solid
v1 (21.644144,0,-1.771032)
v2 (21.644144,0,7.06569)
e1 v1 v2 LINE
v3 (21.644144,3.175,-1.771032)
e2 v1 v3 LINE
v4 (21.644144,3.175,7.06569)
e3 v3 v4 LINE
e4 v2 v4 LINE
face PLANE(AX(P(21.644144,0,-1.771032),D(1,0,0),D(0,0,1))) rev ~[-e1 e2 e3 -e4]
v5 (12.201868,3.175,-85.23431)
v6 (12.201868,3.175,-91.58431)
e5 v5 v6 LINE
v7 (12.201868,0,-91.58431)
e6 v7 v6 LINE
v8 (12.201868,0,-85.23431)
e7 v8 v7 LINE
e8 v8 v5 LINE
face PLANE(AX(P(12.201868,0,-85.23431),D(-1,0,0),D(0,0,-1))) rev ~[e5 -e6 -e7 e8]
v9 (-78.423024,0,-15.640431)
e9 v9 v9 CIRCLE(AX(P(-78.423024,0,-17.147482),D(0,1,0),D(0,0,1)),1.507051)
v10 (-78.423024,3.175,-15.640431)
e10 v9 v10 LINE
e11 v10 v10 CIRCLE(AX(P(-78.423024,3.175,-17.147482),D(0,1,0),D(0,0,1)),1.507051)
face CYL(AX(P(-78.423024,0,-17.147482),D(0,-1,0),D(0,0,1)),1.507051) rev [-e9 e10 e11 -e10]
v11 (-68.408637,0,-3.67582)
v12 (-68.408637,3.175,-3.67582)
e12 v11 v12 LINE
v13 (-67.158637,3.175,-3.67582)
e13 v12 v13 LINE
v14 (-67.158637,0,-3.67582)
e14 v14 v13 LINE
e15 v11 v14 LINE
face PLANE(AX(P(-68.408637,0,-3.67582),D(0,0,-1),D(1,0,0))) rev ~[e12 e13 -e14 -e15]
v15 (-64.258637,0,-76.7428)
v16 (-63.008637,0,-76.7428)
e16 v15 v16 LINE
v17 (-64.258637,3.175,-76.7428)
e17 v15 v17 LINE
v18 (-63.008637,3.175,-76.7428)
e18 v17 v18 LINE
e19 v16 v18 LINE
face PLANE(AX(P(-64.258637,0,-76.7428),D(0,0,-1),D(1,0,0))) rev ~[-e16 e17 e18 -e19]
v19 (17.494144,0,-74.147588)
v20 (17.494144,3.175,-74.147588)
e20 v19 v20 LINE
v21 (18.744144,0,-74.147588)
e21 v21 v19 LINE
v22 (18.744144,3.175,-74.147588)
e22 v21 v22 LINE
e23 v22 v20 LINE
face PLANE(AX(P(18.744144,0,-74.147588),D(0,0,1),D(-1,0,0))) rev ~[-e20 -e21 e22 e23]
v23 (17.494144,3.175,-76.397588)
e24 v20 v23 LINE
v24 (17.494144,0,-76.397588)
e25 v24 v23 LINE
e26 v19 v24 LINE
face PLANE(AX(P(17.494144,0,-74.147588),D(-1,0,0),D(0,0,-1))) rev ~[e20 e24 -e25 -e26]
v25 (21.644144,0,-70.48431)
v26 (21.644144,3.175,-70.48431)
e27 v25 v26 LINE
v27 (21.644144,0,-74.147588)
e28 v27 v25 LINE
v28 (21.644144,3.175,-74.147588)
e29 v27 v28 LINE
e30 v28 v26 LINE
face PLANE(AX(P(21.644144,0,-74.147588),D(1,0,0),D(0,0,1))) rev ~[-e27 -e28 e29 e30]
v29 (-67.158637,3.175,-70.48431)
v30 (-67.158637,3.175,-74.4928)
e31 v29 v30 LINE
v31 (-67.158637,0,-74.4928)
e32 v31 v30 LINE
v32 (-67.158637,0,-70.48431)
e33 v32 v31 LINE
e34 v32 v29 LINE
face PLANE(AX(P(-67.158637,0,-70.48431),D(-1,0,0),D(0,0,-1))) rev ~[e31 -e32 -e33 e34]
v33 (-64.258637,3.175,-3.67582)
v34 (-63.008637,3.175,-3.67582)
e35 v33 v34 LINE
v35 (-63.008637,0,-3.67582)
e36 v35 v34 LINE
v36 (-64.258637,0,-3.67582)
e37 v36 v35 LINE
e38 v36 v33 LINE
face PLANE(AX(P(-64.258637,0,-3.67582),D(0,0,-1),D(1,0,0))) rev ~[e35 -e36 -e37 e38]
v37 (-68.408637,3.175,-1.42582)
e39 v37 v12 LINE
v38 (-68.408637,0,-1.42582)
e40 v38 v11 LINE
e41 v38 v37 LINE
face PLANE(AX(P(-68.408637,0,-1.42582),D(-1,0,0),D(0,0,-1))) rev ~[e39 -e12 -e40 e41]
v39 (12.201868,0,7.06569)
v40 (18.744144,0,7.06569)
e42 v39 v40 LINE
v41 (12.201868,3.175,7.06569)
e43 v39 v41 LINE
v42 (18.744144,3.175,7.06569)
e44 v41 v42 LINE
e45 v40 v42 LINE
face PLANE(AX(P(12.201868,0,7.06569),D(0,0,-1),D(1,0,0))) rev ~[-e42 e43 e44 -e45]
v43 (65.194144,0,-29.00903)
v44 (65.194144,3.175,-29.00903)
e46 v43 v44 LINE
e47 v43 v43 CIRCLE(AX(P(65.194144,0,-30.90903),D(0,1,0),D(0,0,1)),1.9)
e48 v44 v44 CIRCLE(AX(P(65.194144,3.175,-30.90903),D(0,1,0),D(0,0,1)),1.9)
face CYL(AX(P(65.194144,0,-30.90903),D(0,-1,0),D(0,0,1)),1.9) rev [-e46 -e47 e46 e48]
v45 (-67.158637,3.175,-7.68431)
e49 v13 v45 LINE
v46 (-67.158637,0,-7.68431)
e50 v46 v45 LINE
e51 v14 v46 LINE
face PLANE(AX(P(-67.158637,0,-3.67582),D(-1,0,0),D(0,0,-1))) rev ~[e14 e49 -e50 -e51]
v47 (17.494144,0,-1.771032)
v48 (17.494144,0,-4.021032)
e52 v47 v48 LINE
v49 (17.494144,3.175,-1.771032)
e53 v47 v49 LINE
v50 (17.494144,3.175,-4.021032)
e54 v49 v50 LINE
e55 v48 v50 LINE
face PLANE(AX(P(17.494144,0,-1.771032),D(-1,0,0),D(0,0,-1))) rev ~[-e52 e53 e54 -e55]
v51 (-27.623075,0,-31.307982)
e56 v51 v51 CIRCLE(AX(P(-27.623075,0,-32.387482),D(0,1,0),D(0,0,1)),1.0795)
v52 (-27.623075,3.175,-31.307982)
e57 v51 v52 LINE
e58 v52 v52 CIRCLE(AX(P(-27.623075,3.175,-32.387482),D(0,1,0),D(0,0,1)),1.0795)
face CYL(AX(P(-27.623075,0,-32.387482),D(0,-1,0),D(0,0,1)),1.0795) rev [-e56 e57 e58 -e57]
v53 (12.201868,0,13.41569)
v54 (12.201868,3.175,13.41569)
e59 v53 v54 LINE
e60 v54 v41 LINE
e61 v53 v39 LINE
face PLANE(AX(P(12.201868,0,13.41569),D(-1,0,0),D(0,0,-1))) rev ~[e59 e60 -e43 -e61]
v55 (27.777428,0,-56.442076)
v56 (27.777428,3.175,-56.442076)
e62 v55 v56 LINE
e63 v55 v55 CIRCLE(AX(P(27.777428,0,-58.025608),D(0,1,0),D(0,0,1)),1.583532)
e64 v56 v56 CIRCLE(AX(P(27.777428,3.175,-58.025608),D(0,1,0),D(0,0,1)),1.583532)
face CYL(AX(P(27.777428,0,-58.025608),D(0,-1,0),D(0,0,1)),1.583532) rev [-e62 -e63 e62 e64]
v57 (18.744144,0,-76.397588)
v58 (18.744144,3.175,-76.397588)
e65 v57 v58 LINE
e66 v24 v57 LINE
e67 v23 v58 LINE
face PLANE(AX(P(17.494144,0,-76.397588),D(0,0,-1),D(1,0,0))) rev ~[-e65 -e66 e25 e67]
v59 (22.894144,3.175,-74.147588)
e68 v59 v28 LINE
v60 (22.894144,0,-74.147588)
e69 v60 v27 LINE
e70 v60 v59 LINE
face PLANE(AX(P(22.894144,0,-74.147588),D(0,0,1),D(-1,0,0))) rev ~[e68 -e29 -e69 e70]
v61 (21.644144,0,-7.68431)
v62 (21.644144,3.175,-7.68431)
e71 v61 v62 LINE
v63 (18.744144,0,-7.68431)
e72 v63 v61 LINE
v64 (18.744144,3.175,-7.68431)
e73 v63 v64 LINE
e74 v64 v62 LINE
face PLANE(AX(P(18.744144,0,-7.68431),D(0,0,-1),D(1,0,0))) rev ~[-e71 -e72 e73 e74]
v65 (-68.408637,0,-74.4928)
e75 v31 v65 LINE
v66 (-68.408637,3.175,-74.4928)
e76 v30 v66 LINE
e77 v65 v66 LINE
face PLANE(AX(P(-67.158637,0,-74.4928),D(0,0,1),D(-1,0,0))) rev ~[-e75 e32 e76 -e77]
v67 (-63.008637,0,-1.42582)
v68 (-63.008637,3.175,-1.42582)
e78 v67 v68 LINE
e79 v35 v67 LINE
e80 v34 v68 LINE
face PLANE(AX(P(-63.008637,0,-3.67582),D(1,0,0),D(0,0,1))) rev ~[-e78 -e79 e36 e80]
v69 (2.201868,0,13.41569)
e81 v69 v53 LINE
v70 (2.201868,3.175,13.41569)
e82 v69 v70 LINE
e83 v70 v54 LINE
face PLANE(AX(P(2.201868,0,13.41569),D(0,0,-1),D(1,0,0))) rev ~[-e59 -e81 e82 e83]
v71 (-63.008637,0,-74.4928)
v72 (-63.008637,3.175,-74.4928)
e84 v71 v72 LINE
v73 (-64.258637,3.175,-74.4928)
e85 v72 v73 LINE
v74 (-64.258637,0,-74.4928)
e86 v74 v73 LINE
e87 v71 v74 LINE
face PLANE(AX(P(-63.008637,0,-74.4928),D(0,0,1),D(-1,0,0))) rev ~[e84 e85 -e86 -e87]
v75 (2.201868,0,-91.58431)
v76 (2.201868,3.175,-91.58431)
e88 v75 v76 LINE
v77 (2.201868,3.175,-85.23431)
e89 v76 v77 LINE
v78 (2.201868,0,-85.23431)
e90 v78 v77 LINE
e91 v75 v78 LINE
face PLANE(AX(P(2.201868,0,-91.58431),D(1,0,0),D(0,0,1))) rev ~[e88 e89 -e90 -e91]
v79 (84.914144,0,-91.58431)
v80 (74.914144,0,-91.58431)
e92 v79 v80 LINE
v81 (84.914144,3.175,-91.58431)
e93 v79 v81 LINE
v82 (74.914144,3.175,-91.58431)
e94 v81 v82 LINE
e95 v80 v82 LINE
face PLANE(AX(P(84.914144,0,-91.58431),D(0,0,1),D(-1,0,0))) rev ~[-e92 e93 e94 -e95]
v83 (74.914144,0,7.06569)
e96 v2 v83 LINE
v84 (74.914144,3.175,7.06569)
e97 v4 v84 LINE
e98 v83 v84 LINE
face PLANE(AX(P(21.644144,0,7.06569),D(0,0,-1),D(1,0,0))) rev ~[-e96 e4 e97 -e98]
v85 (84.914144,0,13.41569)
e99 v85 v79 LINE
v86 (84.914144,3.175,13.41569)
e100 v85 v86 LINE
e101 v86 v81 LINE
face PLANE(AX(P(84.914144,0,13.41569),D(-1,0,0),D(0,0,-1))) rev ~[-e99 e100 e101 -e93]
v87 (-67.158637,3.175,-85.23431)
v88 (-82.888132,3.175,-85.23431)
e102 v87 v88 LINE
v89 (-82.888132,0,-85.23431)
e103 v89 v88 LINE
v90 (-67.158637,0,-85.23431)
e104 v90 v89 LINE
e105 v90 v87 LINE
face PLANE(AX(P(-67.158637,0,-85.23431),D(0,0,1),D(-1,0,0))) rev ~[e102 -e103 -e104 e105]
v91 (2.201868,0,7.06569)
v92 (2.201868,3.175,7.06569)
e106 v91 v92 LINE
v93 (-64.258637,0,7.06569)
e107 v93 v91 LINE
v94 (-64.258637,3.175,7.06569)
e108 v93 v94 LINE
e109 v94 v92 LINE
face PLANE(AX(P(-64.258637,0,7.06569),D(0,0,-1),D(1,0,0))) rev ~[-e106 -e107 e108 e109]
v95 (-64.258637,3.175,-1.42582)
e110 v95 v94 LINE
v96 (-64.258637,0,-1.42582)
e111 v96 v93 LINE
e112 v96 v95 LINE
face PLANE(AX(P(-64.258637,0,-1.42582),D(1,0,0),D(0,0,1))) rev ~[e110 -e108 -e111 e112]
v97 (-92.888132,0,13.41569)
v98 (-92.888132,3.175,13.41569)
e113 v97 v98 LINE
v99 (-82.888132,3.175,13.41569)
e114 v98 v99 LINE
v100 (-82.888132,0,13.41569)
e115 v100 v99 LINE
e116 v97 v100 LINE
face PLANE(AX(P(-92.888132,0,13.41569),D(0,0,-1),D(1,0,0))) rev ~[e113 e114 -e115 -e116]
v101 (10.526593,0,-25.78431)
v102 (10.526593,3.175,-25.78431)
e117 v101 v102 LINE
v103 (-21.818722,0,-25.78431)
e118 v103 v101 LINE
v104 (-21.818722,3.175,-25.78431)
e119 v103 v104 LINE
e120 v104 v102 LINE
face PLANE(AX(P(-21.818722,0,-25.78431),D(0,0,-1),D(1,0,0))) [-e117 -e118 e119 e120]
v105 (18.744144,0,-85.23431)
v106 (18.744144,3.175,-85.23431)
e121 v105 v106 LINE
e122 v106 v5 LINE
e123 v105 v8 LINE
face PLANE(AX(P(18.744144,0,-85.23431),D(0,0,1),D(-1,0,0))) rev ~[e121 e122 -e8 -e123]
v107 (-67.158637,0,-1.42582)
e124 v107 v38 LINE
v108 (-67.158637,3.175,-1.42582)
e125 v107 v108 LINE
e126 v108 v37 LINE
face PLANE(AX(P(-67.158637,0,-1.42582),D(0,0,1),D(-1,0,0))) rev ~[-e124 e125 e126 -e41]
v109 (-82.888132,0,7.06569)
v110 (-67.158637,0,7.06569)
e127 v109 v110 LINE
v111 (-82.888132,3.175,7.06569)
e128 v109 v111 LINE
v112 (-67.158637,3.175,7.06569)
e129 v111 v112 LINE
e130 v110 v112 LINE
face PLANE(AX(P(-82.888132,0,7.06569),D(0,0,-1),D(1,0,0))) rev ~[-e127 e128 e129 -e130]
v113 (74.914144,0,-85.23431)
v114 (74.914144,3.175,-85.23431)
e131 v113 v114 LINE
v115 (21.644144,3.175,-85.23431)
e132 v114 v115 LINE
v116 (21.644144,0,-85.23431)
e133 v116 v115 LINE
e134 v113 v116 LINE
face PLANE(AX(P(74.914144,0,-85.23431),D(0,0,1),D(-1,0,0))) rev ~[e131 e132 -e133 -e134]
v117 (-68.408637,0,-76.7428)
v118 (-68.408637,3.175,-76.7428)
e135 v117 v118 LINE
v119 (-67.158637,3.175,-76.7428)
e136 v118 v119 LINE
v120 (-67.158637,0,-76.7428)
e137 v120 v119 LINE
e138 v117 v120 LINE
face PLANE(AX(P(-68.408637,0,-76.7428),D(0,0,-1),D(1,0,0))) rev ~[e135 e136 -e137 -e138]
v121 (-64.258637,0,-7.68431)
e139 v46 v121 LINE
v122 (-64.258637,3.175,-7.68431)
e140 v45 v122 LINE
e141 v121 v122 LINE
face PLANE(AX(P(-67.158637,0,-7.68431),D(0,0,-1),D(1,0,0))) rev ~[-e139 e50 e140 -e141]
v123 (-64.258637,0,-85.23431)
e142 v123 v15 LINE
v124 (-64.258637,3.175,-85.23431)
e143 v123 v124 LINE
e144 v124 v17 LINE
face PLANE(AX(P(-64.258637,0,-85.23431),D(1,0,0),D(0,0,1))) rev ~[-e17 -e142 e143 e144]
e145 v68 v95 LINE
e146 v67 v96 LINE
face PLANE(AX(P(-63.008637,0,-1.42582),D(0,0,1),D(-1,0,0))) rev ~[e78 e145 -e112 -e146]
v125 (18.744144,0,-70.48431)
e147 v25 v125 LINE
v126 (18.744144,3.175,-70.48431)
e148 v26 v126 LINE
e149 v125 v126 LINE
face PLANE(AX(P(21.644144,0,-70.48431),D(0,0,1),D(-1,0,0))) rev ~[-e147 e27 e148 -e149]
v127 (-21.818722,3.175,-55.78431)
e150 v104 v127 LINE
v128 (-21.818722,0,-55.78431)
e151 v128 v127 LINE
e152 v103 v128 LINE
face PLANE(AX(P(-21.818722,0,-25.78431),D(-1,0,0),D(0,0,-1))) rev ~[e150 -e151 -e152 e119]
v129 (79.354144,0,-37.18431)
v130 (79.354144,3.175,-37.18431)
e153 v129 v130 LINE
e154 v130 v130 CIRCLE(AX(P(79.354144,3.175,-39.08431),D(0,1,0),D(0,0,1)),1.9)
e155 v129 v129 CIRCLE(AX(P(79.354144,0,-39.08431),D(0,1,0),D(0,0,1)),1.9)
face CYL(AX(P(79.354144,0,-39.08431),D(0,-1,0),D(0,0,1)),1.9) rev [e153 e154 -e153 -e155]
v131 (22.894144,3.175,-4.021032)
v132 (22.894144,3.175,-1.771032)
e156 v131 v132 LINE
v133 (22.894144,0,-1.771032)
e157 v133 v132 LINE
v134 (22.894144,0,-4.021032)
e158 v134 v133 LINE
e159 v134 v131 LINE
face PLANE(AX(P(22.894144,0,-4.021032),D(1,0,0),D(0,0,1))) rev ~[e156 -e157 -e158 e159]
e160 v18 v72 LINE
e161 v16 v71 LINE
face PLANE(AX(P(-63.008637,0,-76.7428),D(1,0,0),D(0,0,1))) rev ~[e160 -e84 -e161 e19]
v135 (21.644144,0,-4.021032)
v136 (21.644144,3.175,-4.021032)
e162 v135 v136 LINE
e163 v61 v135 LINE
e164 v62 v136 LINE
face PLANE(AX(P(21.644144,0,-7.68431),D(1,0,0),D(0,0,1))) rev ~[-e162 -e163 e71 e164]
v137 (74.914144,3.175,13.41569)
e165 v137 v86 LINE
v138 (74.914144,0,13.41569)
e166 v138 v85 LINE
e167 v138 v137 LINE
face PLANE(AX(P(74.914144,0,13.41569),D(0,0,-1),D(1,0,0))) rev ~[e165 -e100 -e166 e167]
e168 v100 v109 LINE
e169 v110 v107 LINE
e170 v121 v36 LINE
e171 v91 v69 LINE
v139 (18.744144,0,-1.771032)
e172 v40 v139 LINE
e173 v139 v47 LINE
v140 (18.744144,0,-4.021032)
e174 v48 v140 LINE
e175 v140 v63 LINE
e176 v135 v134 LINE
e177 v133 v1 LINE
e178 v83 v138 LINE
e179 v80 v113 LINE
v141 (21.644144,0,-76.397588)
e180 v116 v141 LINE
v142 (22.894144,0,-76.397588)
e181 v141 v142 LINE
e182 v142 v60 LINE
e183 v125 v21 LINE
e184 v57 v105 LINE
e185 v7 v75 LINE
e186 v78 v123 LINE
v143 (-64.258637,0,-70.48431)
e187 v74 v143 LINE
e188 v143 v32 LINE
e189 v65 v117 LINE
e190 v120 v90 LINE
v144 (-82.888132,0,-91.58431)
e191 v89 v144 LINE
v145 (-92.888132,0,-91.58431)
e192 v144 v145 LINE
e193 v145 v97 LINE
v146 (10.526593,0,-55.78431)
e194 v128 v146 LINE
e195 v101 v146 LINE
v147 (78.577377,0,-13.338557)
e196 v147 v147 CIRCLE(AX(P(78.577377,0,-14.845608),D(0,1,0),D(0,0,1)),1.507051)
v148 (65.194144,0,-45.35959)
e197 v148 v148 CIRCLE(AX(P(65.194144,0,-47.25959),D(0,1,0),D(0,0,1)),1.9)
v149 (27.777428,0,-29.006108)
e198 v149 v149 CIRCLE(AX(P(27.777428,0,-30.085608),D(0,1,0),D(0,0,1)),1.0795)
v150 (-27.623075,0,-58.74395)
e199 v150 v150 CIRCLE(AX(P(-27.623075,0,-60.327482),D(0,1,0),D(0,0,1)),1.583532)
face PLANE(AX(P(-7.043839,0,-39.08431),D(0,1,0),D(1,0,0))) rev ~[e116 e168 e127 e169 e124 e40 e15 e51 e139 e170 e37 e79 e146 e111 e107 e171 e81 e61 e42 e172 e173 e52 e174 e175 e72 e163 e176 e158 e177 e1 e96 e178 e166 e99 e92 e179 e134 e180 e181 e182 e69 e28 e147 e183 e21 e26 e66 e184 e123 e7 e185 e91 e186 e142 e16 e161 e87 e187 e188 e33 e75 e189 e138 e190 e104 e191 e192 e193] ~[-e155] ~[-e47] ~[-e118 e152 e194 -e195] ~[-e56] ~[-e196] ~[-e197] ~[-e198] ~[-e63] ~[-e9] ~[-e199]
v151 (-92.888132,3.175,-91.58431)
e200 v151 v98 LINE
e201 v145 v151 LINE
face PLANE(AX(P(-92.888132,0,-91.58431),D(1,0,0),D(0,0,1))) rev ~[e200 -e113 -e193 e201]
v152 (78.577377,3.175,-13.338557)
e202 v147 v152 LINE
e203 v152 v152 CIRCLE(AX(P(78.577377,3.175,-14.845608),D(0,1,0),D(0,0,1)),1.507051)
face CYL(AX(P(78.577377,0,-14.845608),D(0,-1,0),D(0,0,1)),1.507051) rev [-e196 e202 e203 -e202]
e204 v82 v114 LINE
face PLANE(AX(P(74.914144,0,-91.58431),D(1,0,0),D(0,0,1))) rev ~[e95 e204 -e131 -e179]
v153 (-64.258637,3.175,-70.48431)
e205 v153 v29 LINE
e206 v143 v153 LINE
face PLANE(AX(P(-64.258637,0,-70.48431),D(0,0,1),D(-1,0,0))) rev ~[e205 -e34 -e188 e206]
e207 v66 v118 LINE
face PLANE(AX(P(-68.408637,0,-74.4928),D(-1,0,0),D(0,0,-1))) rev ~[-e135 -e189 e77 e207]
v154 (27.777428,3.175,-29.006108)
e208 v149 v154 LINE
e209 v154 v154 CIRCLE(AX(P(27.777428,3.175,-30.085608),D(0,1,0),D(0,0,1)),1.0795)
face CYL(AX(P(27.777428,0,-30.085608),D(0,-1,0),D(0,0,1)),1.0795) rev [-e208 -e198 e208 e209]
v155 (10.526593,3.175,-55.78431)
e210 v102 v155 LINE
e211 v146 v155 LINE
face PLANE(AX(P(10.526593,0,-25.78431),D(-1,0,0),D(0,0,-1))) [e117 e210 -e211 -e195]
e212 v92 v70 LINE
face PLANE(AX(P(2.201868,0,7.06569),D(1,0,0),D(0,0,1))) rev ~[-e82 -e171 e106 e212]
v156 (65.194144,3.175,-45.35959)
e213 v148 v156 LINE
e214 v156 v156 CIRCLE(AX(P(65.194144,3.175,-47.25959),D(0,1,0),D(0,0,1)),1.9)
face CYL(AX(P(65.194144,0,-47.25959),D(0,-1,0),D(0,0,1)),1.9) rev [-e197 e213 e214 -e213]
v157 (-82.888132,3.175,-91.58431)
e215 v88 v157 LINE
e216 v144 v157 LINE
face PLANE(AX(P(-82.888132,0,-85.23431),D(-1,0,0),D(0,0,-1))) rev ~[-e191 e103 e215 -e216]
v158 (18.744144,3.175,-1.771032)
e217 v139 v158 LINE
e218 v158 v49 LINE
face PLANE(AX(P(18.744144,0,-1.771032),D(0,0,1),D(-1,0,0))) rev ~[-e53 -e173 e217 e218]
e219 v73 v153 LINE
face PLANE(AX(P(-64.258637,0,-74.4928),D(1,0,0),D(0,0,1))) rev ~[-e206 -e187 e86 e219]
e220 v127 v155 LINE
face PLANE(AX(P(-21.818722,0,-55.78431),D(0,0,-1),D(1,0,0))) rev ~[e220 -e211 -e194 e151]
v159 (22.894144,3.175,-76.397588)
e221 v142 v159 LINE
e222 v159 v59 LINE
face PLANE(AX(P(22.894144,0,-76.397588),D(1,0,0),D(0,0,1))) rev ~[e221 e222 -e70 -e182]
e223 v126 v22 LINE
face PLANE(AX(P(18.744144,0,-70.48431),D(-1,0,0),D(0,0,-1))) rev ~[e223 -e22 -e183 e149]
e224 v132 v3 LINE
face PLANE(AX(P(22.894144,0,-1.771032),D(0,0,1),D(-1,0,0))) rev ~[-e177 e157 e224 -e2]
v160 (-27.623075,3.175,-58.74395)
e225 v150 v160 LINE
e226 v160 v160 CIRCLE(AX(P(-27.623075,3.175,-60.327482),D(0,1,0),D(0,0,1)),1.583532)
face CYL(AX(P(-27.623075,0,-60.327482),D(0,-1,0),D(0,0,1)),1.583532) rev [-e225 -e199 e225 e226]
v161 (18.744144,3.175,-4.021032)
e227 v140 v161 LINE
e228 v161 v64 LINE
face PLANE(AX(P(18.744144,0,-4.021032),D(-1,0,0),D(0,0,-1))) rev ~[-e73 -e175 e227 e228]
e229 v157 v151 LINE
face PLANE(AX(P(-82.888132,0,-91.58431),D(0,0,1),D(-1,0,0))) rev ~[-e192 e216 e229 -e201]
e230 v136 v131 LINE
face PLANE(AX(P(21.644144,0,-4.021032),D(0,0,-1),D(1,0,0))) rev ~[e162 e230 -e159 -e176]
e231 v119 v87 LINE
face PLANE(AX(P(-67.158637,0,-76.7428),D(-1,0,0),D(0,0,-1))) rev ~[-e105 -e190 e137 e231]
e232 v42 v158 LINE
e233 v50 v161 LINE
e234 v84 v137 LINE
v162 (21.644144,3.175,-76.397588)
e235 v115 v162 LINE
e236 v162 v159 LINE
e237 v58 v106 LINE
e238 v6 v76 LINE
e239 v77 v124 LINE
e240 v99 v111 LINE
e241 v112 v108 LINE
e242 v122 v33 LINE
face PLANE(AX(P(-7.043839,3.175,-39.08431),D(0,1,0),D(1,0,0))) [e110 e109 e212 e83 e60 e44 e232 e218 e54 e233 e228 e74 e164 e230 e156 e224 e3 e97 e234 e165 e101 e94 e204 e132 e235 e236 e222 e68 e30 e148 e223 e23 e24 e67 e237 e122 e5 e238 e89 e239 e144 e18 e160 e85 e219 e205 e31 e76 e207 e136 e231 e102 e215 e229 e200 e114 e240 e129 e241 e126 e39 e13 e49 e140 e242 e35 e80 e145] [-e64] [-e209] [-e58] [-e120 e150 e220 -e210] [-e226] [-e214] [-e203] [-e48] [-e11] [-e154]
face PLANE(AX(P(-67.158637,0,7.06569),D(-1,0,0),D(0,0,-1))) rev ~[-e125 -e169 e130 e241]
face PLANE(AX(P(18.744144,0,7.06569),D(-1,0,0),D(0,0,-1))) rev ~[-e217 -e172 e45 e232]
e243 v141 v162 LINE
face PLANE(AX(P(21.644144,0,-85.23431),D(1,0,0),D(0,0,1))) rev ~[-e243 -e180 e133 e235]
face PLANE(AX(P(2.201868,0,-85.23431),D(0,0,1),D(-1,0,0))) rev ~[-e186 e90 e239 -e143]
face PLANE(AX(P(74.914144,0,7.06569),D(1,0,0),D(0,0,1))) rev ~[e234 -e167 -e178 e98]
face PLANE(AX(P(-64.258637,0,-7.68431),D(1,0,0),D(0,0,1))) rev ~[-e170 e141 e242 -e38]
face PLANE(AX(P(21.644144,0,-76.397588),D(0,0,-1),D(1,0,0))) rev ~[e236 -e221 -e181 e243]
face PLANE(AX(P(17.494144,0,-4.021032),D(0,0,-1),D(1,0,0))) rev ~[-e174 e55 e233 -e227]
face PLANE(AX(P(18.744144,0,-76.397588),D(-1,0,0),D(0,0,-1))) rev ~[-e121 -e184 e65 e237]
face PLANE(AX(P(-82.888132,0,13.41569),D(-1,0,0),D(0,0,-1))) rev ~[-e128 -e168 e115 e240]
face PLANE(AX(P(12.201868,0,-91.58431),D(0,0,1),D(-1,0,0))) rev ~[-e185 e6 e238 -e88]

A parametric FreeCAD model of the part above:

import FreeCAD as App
import Part
import Sketcher

V = App.Vector

doc = App.newDocument("Part")
params = doc.addObject("Spreadsheet::Sheet", "Params")
for row, (alias, value) in enumerate([
    ("sketch1_diameter", "3.8 mm"),
    ("sketch1_width", "10 mm"),
    ("sketch1_height", "105 mm"),
    ("sketch1_height2", "30 mm"),
    ("sketch1_width2", "2.9 mm"),
    ("pad1_length", "3.175 mm"),
], start=1):
    params.set(f"A{row}", alias)
    params.set(f"B{row}", "=" + value)
    params.setAlias(f"B{row}", alias)

body = doc.addObject("PartDesign::Body", "Body")

# Sketch on XZ plane
sketch1 = doc.addObject("Sketcher::SketchObject", "Sketch")
body.addObject(sketch1)
sketch1.AttachmentSupport = (doc.XZ_Plane, [""])
sketch1.MapMode = "FlatFace"
sketch1.addGeometry(Part.LineSegment(V(-67.2, -70.5, 0), V(-67.2, -74.5, 0)), False)
sketch1.addGeometry(Part.LineSegment(V(-67.2, -74.5, 0), V(-68.4, -74.5, 0)), False)
sketch1.addGeometry(Part.LineSegment(V(-68.4, -74.5, 0), V(-68.4, -76.7, 0)), False)
sketch1.addGeometry(Part.LineSegment(V(-68.4, -76.7, 0), V(-67.2, -76.7, 0)), False)
sketch1.addGeometry(Part.LineSegment(V(-67.2, -76.7, 0), V(-67.2, -85.2, 0)), False)
sketch1.addGeometry(Part.LineSegment(V(-67.2, -85.2, 0), V(-82.9, -85.2, 0)), False)
sketch1.addGeometry(Part.LineSegment(V(-82.9, -85.2, 0), V(-82.9, -91.6, 0)), False)
sketch1.addGeometry(Part.LineSegment(V(-82.9, -91.6, 0), V(-92.9, -91.6, 0)), False)
sketch1.addGeometry(Part.LineSegment(V(-92.9, -91.6, 0), V(-92.9, 13.4, 0)), False)
sketch1.addGeometry(Part.LineSegment(V(-92.9, 13.4, 0), V(-82.9, 13.4, 0)), False)
sketch1.addGeometry(Part.LineSegment(V(-82.9, 13.4, 0), V(-82.9, 7.1, 0)), False)
sketch1.addGeometry(Part.LineSegment(V(-82.9, 7.1, 0), V(-67.2, 7.1, 0)), False)
sketch1.addGeometry(Part.LineSegment(V(-67.2, 7.1, 0), V(-67.2, -1.4, 0)), False)
sketch1.addGeometry(Part.LineSegment(V(-67.2, -1.4, 0), V(-68.4, -1.4, 0)), False)
sketch1.addGeometry(Part.LineSegment(V(-68.4, -1.4, 0), V(-68.4, -3.7, 0)), False)
sketch1.addGeometry(Part.LineSegment(V(-68.4, -3.7, 0), V(-67.2, -3.7, 0)), False)
sketch1.addGeometry(Part.LineSegment(V(-67.2, -3.7, 0), V(-67.2, -7.7, 0)), False)
sketch1.addGeometry(Part.LineSegment(V(-67.2, -7.7, 0), V(-64.3, -7.7, 0)), False)
sketch1.addGeometry(Part.LineSegment(V(-64.3, -7.7, 0), V(-64.3, -3.7, 0)), False)
sketch1.addGeometry(Part.LineSegment(V(-64.3, -3.7, 0), V(-63, -3.7, 0)), False)
sketch1.addGeometry(Part.LineSegment(V(-63, -3.7, 0), V(-63, -1.4, 0)), False)
sketch1.addGeometry(Part.LineSegment(V(-63, -1.4, 0), V(-64.3, -1.4, 0)), False)
sketch1.addGeometry(Part.LineSegment(V(-64.3, -1.4, 0), V(-64.3, 7.1, 0)), False)
sketch1.addGeometry(Part.LineSegment(V(-64.3, 7.1, 0), V(2.2, 7.1, 0)), False)
sketch1.addGeometry(Part.LineSegment(V(2.2, 7.1, 0), V(2.2, 13.4, 0)), False)
sketch1.addGeometry(Part.LineSegment(V(2.2, 13.4, 0), V(12.2, 13.4, 0)), False)
sketch1.addGeometry(Part.LineSegment(V(12.2, 13.4, 0), V(12.2, 7.1, 0)), False)
sketch1.addGeometry(Part.LineSegment(V(12.2, 7.1, 0), V(18.7, 7.1, 0)), False)
sketch1.addGeometry(Part.LineSegment(V(18.7, 7.1, 0), V(18.7, -1.8, 0)), False)
sketch1.addGeometry(Part.LineSegment(V(18.7, -1.8, 0), V(17.5, -1.8, 0)), False)
sketch1.addGeometry(Part.LineSegment(V(17.5, -1.8, 0), V(17.5, -4, 0)), False)
sketch1.addGeometry(Part.LineSegment(V(17.5, -4, 0), V(18.7, -4, 0)), False)
sketch1.addGeometry(Part.LineSegment(V(18.7, -4, 0), V(18.7, -7.7, 0)), False)
sketch1.addGeometry(Part.LineSegment(V(18.7, -7.7, 0), V(21.6, -7.7, 0)), False)
sketch1.addGeometry(Part.LineSegment(V(21.6, -7.7, 0), V(21.6, -4, 0)), False)
sketch1.addGeometry(Part.LineSegment(V(21.6, -4, 0), V(22.9, -4, 0)), False)
sketch1.addGeometry(Part.LineSegment(V(22.9, -4, 0), V(22.9, -1.8, 0)), False)
sketch1.addGeometry(Part.LineSegment(V(22.9, -1.8, 0), V(21.6, -1.8, 0)), False)
sketch1.addGeometry(Part.LineSegment(V(21.6, -1.8, 0), V(21.6, 7.1, 0)), False)
sketch1.addGeometry(Part.LineSegment(V(21.6, 7.1, 0), V(74.9, 7.1, 0)), False)
sketch1.addGeometry(Part.LineSegment(V(74.9, 7.1, 0), V(74.9, 13.4, 0)), False)
sketch1.addGeometry(Part.LineSegment(V(74.9, 13.4, 0), V(84.9, 13.4, 0)), False)
sketch1.addGeometry(Part.LineSegment(V(84.9, 13.4, 0), V(84.9, -91.6, 0)), False)
sketch1.addGeometry(Part.LineSegment(V(84.9, -91.6, 0), V(74.9, -91.6, 0)), False)
sketch1.addGeometry(Part.LineSegment(V(74.9, -91.6, 0), V(74.9, -85.2, 0)), False)
sketch1.addGeometry(Part.LineSegment(V(74.9, -85.2, 0), V(21.6, -85.2, 0)), False)
sketch1.addGeometry(Part.LineSegment(V(21.6, -85.2, 0), V(21.6, -76.4, 0)), False)
sketch1.addGeometry(Part.LineSegment(V(21.6, -76.4, 0), V(22.9, -76.4, 0)), False)
sketch1.addGeometry(Part.LineSegment(V(22.9, -76.4, 0), V(22.9, -74.1, 0)), False)
sketch1.addGeometry(Part.LineSegment(V(22.9, -74.1, 0), V(21.6, -74.1, 0)), False)
sketch1.addGeometry(Part.LineSegment(V(21.6, -74.1, 0), V(21.6, -70.5, 0)), False)
sketch1.addGeometry(Part.LineSegment(V(21.6, -70.5, 0), V(18.7, -70.5, 0)), False)
sketch1.addGeometry(Part.LineSegment(V(18.7, -70.5, 0), V(18.7, -74.1, 0)), False)
sketch1.addGeometry(Part.LineSegment(V(18.7, -74.1, 0), V(17.5, -74.1, 0)), False)
sketch1.addGeometry(Part.LineSegment(V(17.5, -74.1, 0), V(17.5, -76.4, 0)), False)
sketch1.addGeometry(Part.LineSegment(V(17.5, -76.4, 0), V(18.7, -76.4, 0)), False)
sketch1.addGeometry(Part.LineSegment(V(18.7, -76.4, 0), V(18.7, -85.2, 0)), False)
sketch1.addGeometry(Part.LineSegment(V(18.7, -85.2, 0), V(12.2, -85.2, 0)), False)
sketch1.addGeometry(Part.LineSegment(V(12.2, -85.2, 0), V(12.2, -91.6, 0)), False)
sketch1.addGeometry(Part.LineSegment(V(12.2, -91.6, 0), V(2.2, -91.6, 0)), False)
sketch1.addGeometry(Part.LineSegment(V(2.2, -91.6, 0), V(2.2, -85.2, 0)), False)
sketch1.addGeometry(Part.LineSegment(V(2.2, -85.2, 0), V(-64.3, -85.2, 0)), False)
sketch1.addGeometry(Part.LineSegment(V(-64.3, -85.2, 0), V(-64.3, -76.7, 0)), False)
sketch1.addGeometry(Part.LineSegment(V(-64.3, -76.7, 0), V(-63, -76.7, 0)), False)
sketch1.addGeometry(Part.LineSegment(V(-63, -76.7, 0), V(-63, -74.5, 0)), False)
sketch1.addGeometry(Part.LineSegment(V(-63, -74.5, 0), V(-64.3, -74.5, 0)), False)
sketch1.addGeometry(Part.LineSegment(V(-64.3, -74.5, 0), V(-64.3, -70.5, 0)), False)
sketch1.addGeometry(Part.LineSegment(V(-64.3, -70.5, 0), V(-67.2, -70.5, 0)), False)
sketch1.addGeometry(Part.Circle(V(-78.4, -17.1, 0), V(0, 0, 1), 1.5), False)
sketch1.addGeometry(Part.Circle(V(-27.6, -32.4, 0), V(0, 0, 1), 1.1), False)
sketch1.addGeometry(Part.Circle(V(78.6, -14.8, 0), V(0, 0, 1), 1.5), False)
sketch1.addGeometry(Part.Circle(V(27.8, -30.1, 0), V(0, 0, 1), 1.1), False)
sketch1.addGeometry(Part.Circle(V(65.2, -30.9, 0), V(0, 0, 1), 1.9), False)
sketch1.addGeometry(Part.LineSegment(V(10.5, -25.8, 0), V(-21.8, -25.8, 0)), False)
sketch1.addGeometry(Part.LineSegment(V(-21.8, -25.8, 0), V(-21.8, -55.8, 0)), False)
sketch1.addGeometry(Part.LineSegment(V(-21.8, -55.8, 0), V(10.5, -55.8, 0)), False)
sketch1.addGeometry(Part.LineSegment(V(10.5, -55.8, 0), V(10.5, -25.8, 0)), False)
sketch1.addGeometry(Part.Circle(V(-27.6, -60.3, 0), V(0, 0, 1), 1.6), False)
sketch1.addGeometry(Part.Circle(V(79.4, -39.1, 0), V(0, 0, 1), 1.9), False)
sketch1.addGeometry(Part.Circle(V(65.2, -47.3, 0), V(0, 0, 1), 1.9), False)
sketch1.addGeometry(Part.Circle(V(27.8, -58, 0), V(0, 0, 1), 1.6), False)
sketch1.addConstraint(Sketcher.Constraint("Coincident", 0, 2, 1, 1))
sketch1.addConstraint(Sketcher.Constraint("Coincident", 1, 2, 2, 1))
sketch1.addConstraint(Sketcher.Constraint("Coincident", 2, 2, 3, 1))
sketch1.addConstraint(Sketcher.Constraint("Coincident", 3, 2, 4, 1))
sketch1.addConstraint(Sketcher.Constraint("Coincident", 4, 2, 5, 1))
sketch1.addConstraint(Sketcher.Constraint("Coincident", 5, 2, 6, 1))
sketch1.addConstraint(Sketcher.Constraint("Coincident", 6, 2, 7, 1))
sketch1.addConstraint(Sketcher.Constraint("Coincident", 7, 2, 8, 1))
sketch1.addConstraint(Sketcher.Constraint("Coincident", 8, 2, 9, 1))
sketch1.addConstraint(Sketcher.Constraint("Coincident", 9, 2, 10, 1))
sketch1.addConstraint(Sketcher.Constraint("Coincident", 10, 2, 11, 1))
sketch1.addConstraint(Sketcher.Constraint("Coincident", 11, 2, 12, 1))
sketch1.addConstraint(Sketcher.Constraint("Coincident", 12, 2, 13, 1))
sketch1.addConstraint(Sketcher.Constraint("Coincident", 13, 2, 14, 1))
sketch1.addConstraint(Sketcher.Constraint("Coincident", 14, 2, 15, 1))
sketch1.addConstraint(Sketcher.Constraint("Coincident", 15, 2, 16, 1))
sketch1.addConstraint(Sketcher.Constraint("Coincident", 16, 2, 17, 1))
sketch1.addConstraint(Sketcher.Constraint("Coincident", 17, 2, 18, 1))
sketch1.addConstraint(Sketcher.Constraint("Coincident", 18, 2, 19, 1))
sketch1.addConstraint(Sketcher.Constraint("Coincident", 19, 2, 20, 1))
sketch1.addConstraint(Sketcher.Constraint("Coincident", 20, 2, 21, 1))
sketch1.addConstraint(Sketcher.Constraint("Coincident", 21, 2, 22, 1))
sketch1.addConstraint(Sketcher.Constraint("Coincident", 22, 2, 23, 1))
sketch1.addConstraint(Sketcher.Constraint("Coincident", 23, 2, 24, 1))
sketch1.addConstraint(Sketcher.Constraint("Coincident", 24, 2, 25, 1))
sketch1.addConstraint(Sketcher.Constraint("Coincident", 25, 2, 26, 1))
sketch1.addConstraint(Sketcher.Constraint("Coincident", 26, 2, 27, 1))
sketch1.addConstraint(Sketcher.Constraint("Coincident", 27, 2, 28, 1))
sketch1.addConstraint(Sketcher.Constraint("Coincident", 28, 2, 29, 1))
sketch1.addConstraint(Sketcher.Constraint("Coincident", 29, 2, 30, 1))
sketch1.addConstraint(Sketcher.Constraint("Coincident", 30, 2, 31, 1))
sketch1.addConstraint(Sketcher.Constraint("Coincident", 31, 2, 32, 1))
sketch1.addConstraint(Sketcher.Constraint("Coincident", 32, 2, 33, 1))
sketch1.addConstraint(Sketcher.Constraint("Coincident", 33, 2, 34, 1))
sketch1.addConstraint(Sketcher.Constraint("Coincident", 34, 2, 35, 1))
sketch1.addConstraint(Sketcher.Constraint("Coincident", 35, 2, 36, 1))
sketch1.addConstraint(Sketcher.Constraint("Coincident", 36, 2, 37, 1))
sketch1.addConstraint(Sketcher.Constraint("Coincident", 37, 2, 38, 1))
sketch1.addConstraint(Sketcher.Constraint("Coincident", 38, 2, 39, 1))
sketch1.addConstraint(Sketcher.Constraint("Coincident", 39, 2, 40, 1))
sketch1.addConstraint(Sketcher.Constraint("Coincident", 40, 2, 41, 1))
sketch1.addConstraint(Sketcher.Constraint("Coincident", 41, 2, 42, 1))
sketch1.addConstraint(Sketcher.Constraint("Coincident", 42, 2, 43, 1))
sketch1.addConstraint(Sketcher.Constraint("Coincident", 43, 2, 44, 1))
sketch1.addConstraint(Sketcher.Constraint("Coincident", 44, 2, 45, 1))
sketch1.addConstraint(Sketcher.Constraint("Coincident", 45, 2, 46, 1))
sketch1.addConstraint(Sketcher.Constraint("Coincident", 46, 2, 47, 1))
sketch1.addConstraint(Sketcher.Constraint("Coincident", 47, 2, 48, 1))
sketch1.addConstraint(Sketcher.Constraint("Coincident", 48, 2, 49, 1))
sketch1.addConstraint(Sketcher.Constraint("Coincident", 49, 2, 50, 1))
sketch1.addConstraint(Sketcher.Constraint("Coincident", 50, 2, 51, 1))
sketch1.addConstraint(Sketcher.Constraint("Coincident", 51, 2, 52, 1))
sketch1.addConstraint(Sketcher.Constraint("Coincident", 52, 2, 53, 1))
sketch1.addConstraint(Sketcher.Constraint("Coincident", 53, 2, 54, 1))
sketch1.addConstraint(Sketcher.Constraint("Coincident", 54, 2, 55, 1))
sketch1.addConstraint(Sketcher.Constraint("Coincident", 55, 2, 56, 1))
sketch1.addConstraint(Sketcher.Constraint("Coincident", 56, 2, 57, 1))
sketch1.addConstraint(Sketcher.Constraint("Coincident", 57, 2, 58, 1))
sketch1.addConstraint(Sketcher.Constraint("Coincident", 58, 2, 59, 1))
sketch1.addConstraint(Sketcher.Constraint("Coincident", 59, 2, 60, 1))
sketch1.addConstraint(Sketcher.Constraint("Coincident", 60, 2, 61, 1))
sketch1.addConstraint(Sketcher.Constraint("Coincident", 61, 2, 62, 1))
sketch1.addConstraint(Sketcher.Constraint("Coincident", 62, 2, 63, 1))
sketch1.addConstraint(Sketcher.Constraint("Coincident", 63, 2, 64, 1))
sketch1.addConstraint(Sketcher.Constraint("Coincident", 64, 2, 65, 1))
sketch1.addConstraint(Sketcher.Constraint("Coincident", 65, 2, 66, 1))
sketch1.addConstraint(Sketcher.Constraint("Coincident", 66, 2, 67, 1))
sketch1.addConstraint(Sketcher.Constraint("Coincident", 67, 2, 0, 1))
sketch1.addConstraint(Sketcher.Constraint("Coincident", 73, 2, 74, 1))
sketch1.addConstraint(Sketcher.Constraint("Coincident", 74, 2, 75, 1))
sketch1.addConstraint(Sketcher.Constraint("Coincident", 75, 2, 76, 1))
sketch1.addConstraint(Sketcher.Constraint("Coincident", 76, 2, 73, 1))
sketch1.addConstraint(Sketcher.Constraint("Vertical", 0))
sketch1.addConstraint(Sketcher.Constraint("Horizontal", 1))
sketch1.addConstraint(Sketcher.Constraint("Vertical", 2))
sketch1.addConstraint(Sketcher.Constraint("Horizontal", 3))
sketch1.addConstraint(Sketcher.Constraint("Vertical", 4))
sketch1.addConstraint(Sketcher.Constraint("Horizontal", 5))
sketch1.addConstraint(Sketcher.Constraint("Vertical", 6))
sketch1.addConstraint(Sketcher.Constraint("Horizontal", 7))
sketch1.addConstraint(Sketcher.Constraint("Vertical", 8))
sketch1.addConstraint(Sketcher.Constraint("Horizontal", 9))
sketch1.addConstraint(Sketcher.Constraint("Vertical", 10))
sketch1.addConstraint(Sketcher.Constraint("Horizontal", 11))
sketch1.addConstraint(Sketcher.Constraint("Vertical", 12))
sketch1.addConstraint(Sketcher.Constraint("Horizontal", 13))
sketch1.addConstraint(Sketcher.Constraint("Vertical", 14))
sketch1.addConstraint(Sketcher.Constraint("Horizontal", 15))
sketch1.addConstraint(Sketcher.Constraint("Vertical", 16))
sketch1.addConstraint(Sketcher.Constraint("Horizontal", 17))
sketch1.addConstraint(Sketcher.Constraint("Vertical", 18))
sketch1.addConstraint(Sketcher.Constraint("Horizontal", 19))
sketch1.addConstraint(Sketcher.Constraint("Vertical", 20))
sketch1.addConstraint(Sketcher.Constraint("Horizontal", 21))
sketch1.addConstraint(Sketcher.Constraint("Vertical", 22))
sketch1.addConstraint(Sketcher.Constraint("Horizontal", 23))
sketch1.addConstraint(Sketcher.Constraint("Vertical", 24))
sketch1.addConstraint(Sketcher.Constraint("Horizontal", 25))
sketch1.addConstraint(Sketcher.Constraint("Vertical", 26))
sketch1.addConstraint(Sketcher.Constraint("Horizontal", 27))
sketch1.addConstraint(Sketcher.Constraint("Vertical", 28))
sketch1.addConstraint(Sketcher.Constraint("Horizontal", 29))
sketch1.addConstraint(Sketcher.Constraint("Vertical", 30))
sketch1.addConstraint(Sketcher.Constraint("Horizontal", 31))
sketch1.addConstraint(Sketcher.Constraint("Vertical", 32))
sketch1.addConstraint(Sketcher.Constraint("Horizontal", 33))
sketch1.addConstraint(Sketcher.Constraint("Vertical", 34))
sketch1.addConstraint(Sketcher.Constraint("Horizontal", 35))
sketch1.addConstraint(Sketcher.Constraint("Vertical", 36))
sketch1.addConstraint(Sketcher.Constraint("Horizontal", 37))
sketch1.addConstraint(Sketcher.Constraint("Vertical", 38))
sketch1.addConstraint(Sketcher.Constraint("Horizontal", 39))
sketch1.addConstraint(Sketcher.Constraint("Vertical", 40))
sketch1.addConstraint(Sketcher.Constraint("Horizontal", 41))
sketch1.addConstraint(Sketcher.Constraint("Vertical", 42))
sketch1.addConstraint(Sketcher.Constraint("Horizontal", 43))
sketch1.addConstraint(Sketcher.Constraint("Vertical", 44))
sketch1.addConstraint(Sketcher.Constraint("Horizontal", 45))
sketch1.addConstraint(Sketcher.Constraint("Vertical", 46))
sketch1.addConstraint(Sketcher.Constraint("Horizontal", 47))
sketch1.addConstraint(Sketcher.Constraint("Vertical", 48))
sketch1.addConstraint(Sketcher.Constraint("Horizontal", 49))
sketch1.addConstraint(Sketcher.Constraint("Vertical", 50))
sketch1.addConstraint(Sketcher.Constraint("Horizontal", 51))
sketch1.addConstraint(Sketcher.Constraint("Vertical", 52))
sketch1.addConstraint(Sketcher.Constraint("Horizontal", 53))
sketch1.addConstraint(Sketcher.Constraint("Vertical", 54))
sketch1.addConstraint(Sketcher.Constraint("Horizontal", 55))
sketch1.addConstraint(Sketcher.Constraint("Vertical", 56))
sketch1.addConstraint(Sketcher.Constraint("Horizontal", 57))
sketch1.addConstraint(Sketcher.Constraint("Vertical", 58))
sketch1.addConstraint(Sketcher.Constraint("Horizontal", 59))
sketch1.addConstraint(Sketcher.Constraint("Vertical", 60))
sketch1.addConstraint(Sketcher.Constraint("Horizontal", 61))
sketch1.addConstraint(Sketcher.Constraint("Vertical", 62))
sketch1.addConstraint(Sketcher.Constraint("Horizontal", 63))
sketch1.addConstraint(Sketcher.Constraint("Vertical", 64))
sketch1.addConstraint(Sketcher.Constraint("Horizontal", 65))
sketch1.addConstraint(Sketcher.Constraint("Vertical", 66))
sketch1.addConstraint(Sketcher.Constraint("Horizontal", 67))
sketch1.addConstraint(Sketcher.Constraint("Horizontal", 73))
sketch1.addConstraint(Sketcher.Constraint("Vertical", 74))
sketch1.addConstraint(Sketcher.Constraint("Horizontal", 75))
sketch1.addConstraint(Sketcher.Constraint("Vertical", 76))
sketch1.addConstraint(Sketcher.Constraint("Equal", 68, 70))
sketch1.addConstraint(Sketcher.Constraint("Equal", 69, 71))
sketch1.addConstraint(Sketcher.Constraint("Equal", 72, 78))
sketch1.addConstraint(Sketcher.Constraint("Equal", 78, 79))
sketch1.addConstraint(Sketcher.Constraint("Equal", 77, 80))
sketch1.addConstraint(Sketcher.Constraint("Horizontal", 15, 2, 18, 2))
sketch1.addConstraint(Sketcher.Constraint("Horizontal", 13, 2, 20, 2))
sketch1.addConstraint(Sketcher.Constraint("Horizontal", 11, 2, 22, 2))
sketch1.addConstraint(Sketcher.Constraint("Horizontal", 9, 2, 24, 2))
sketch1.addConstraint(Sketcher.Constraint("Horizontal", 23, 2, 26, 2))
sketch1.addConstraint(Sketcher.Constraint("Horizontal", 17, 2, 32, 2))
sketch1.addConstraint(Sketcher.Constraint("Horizontal", 31, 2, 34, 2))
sketch1.addConstraint(Sketcher.Constraint("Horizontal", 29, 2, 36, 2))
sketch1.addConstraint(Sketcher.Constraint("Horizontal", 27, 2, 38, 2))
sketch1.addConstraint(Sketcher.Constraint("Horizontal", 25, 2, 40, 2))
sketch1.addConstraint(Sketcher.Constraint("Horizontal", 7, 2, 42, 2))
sketch1.addConstraint(Sketcher.Constraint("Horizontal", 5, 2, 44, 2))
sketch1.addConstraint(Sketcher.Constraint("Horizontal", 49, 2, 52, 2))
sketch1.addConstraint(Sketcher.Constraint("Horizontal", 47, 2, 54, 2))
sketch1.addConstraint(Sketcher.Constraint("Horizontal", 45, 2, 56, 2))
sketch1.addConstraint(Sketcher.Constraint("Horizontal", 43, 2, 58, 2))
sketch1.addConstraint(Sketcher.Constraint("Horizontal", 57, 2, 60, 2))
sketch1.addConstraint(Sketcher.Constraint("Horizontal", 3, 2, 62, 2))
sketch1.addConstraint(Sketcher.Constraint("Horizontal", 1, 2, 64, 2))
sketch1.addConstraint(Sketcher.Constraint("Horizontal", 51, 2, 66, 2))
sketch1.addConstraint(Sketcher.Constraint("Vertical", 69, 3, 77, 3))
sketch1.addConstraint(Sketcher.Constraint("Vertical", 72, 3, 79, 3))
sketch1.addConstraint(Sketcher.Constraint("Vertical", 71, 3, 80, 3))
sketch1.addConstraint(Sketcher.Constraint("Vertical", 0, 2, 3, 2))
sketch1.addConstraint(Sketcher.Constraint("Vertical", 6, 2, 9, 2))
sketch1.addConstraint(Sketcher.Constraint("Vertical", 4, 2, 11, 2))
sketch1.addConstraint(Sketcher.Constraint("Vertical", 2, 2, 13, 2))
sketch1.addConstraint(Sketcher.Constraint("Vertical", 12, 2, 15, 2))
sketch1.addConstraint(Sketcher.Constraint("Vertical", 18, 2, 21, 2))
sketch1.addConstraint(Sketcher.Constraint("Vertical", 28, 2, 31, 2))
sketch1.addConstraint(Sketcher.Constraint("Vertical", 34, 2, 37, 2))
sketch1.addConstraint(Sketcher.Constraint("Vertical", 40, 2, 43, 2))
sketch1.addConstraint(Sketcher.Constraint("Vertical", 38, 2, 45, 2))
sketch1.addConstraint(Sketcher.Constraint("Vertical", 36, 2, 47, 2))
sketch1.addConstraint(Sketcher.Constraint("Vertical", 46, 2, 49, 2))
sketch1.addConstraint(Sketcher.Constraint("Vertical", 32, 2, 51, 2))
sketch1.addConstraint(Sketcher.Constraint("Vertical", 30, 2, 53, 2))
sketch1.addConstraint(Sketcher.Constraint("Vertical", 52, 2, 55, 2))
sketch1.addConstraint(Sketcher.Constraint("Vertical", 26, 2, 57, 2))
sketch1.addConstraint(Sketcher.Constraint("Vertical", 24, 2, 59, 2))
sketch1.addConstraint(Sketcher.Constraint("Vertical", 22, 2, 61, 2))
sketch1.addConstraint(Sketcher.Constraint("Vertical", 20, 2, 63, 2))
sketch1.addConstraint(Sketcher.Constraint("Vertical", 62, 2, 65, 2))
sketch1.addConstraint(Sketcher.Constraint("Equal", 15, 19))
sketch1.addConstraint(Sketcher.Constraint("Equal", 9, 25))
sketch1.addConstraint(Sketcher.Constraint("Equal", 21, 29))
sketch1.addConstraint(Sketcher.Constraint("Equal", 17, 33))
sketch1.addConstraint(Sketcher.Constraint("Equal", 31, 35))
sketch1.addConstraint(Sketcher.Constraint("Equal", 25, 41))
sketch1.addConstraint(Sketcher.Constraint("Equal", 6, 10))
sketch1.addConstraint(Sketcher.Constraint("Equal", 4, 12))
sketch1.addConstraint(Sketcher.Constraint("Equal", 2, 14))
sketch1.addConstraint(Sketcher.Constraint("Equal", 0, 16))
sketch1.addConstraint(Sketcher.Constraint("Equal", 20, 30))
sketch1.addConstraint(Sketcher.Constraint("Equal", 38, 46))
sketch1.addConstraint(Sketcher.Constraint("Equal", 36, 48))
sketch1.addConstraint(Sketcher.Constraint("Diameter", 72, 3.8))
sketch1.addConstraint(Sketcher.Constraint("DistanceX", 7, 2, 7, 1, 10.0))
sketch1.addConstraint(Sketcher.Constraint("DistanceY", 8, 1, 8, 2, 105.0))
sketch1.addConstraint(Sketcher.Constraint("DistanceY", 74, 2, 74, 1, 30.0))
sketch1.addConstraint(Sketcher.Constraint("Diameter", 69, 2.159))
sketch1.addConstraint(Sketcher.Constraint("DistanceX", 17, 1, 17, 2, 2.9))
sketch1.addConstraint(Sketcher.Constraint("DistanceX", 1, 2, 1, 1, 1.25))
sketch1.addConstraint(Sketcher.Constraint("DistanceX", 39, 1, 39, 2, 53.27))
sketch1.addConstraint(Sketcher.Constraint("DistanceY", 2, 2, 2, 1, 2.25))
sketch1.addConstraint(Sketcher.Constraint("DistanceY", 6, 2, 6, 1, 6.35))
sketch1.addConstraint(Sketcher.Constraint("Diameter", 68, 3.014102))
sketch1.addConstraint(Sketcher.Constraint("Diameter", 77, 3.167063))
sketch1.addConstraint(Sketcher.Constraint("DistanceY", 0, 2, 0, 1, 4.00849))
sketch1.addConstraint(Sketcher.Constraint("DistanceY", 4, 2, 4, 1, 8.49151))
sketch1.addConstraint(Sketcher.Constraint("DistanceY", 28, 2, 28, 1, 8.836722))
sketch1.addConstraint(Sketcher.Constraint("DistanceY", 0, 2, -1, 1, 74.4928))
sketch1.addConstraint(Sketcher.Constraint("DistanceX", 5, 2, 5, 1, 15.729495))
sketch1.addConstraint(Sketcher.Constraint("DistanceX", 23, 1, 23, 2, 66.460505))
sketch1.addConstraint(Sketcher.Constraint("DistanceX", 27, 1, 27, 2, 6.542275))
sketch1.addConstraint(Sketcher.Constraint("DistanceX", 73, 2, 73, 1, 32.345315))
sketch1.addConstraint(Sketcher.Constraint("DistanceY", 68, 3, -1, 1, 17.147482))
sketch1.addConstraint(Sketcher.Constraint("DistanceY", 69, 3, -1, 1, 32.387482))
sketch1.addConstraint(Sketcher.Constraint("DistanceY", 70, 3, -1, 1, 14.845608))
sketch1.addConstraint(Sketcher.Constraint("DistanceX", -1, 1, 71, 3, 27.777428))
sketch1.addConstraint(Sketcher.Constraint("DistanceY", 71, 3, -1, 1, 30.085608))
sketch1.addConstraint(Sketcher.Constraint("DistanceY", 72, 3, -1, 1, 30.90903))
sketch1.addConstraint(Sketcher.Constraint("DistanceY", 77, 3, -1, 1, 60.327482))
sketch1.addConstraint(Sketcher.Constraint("DistanceY", 78, 3, -1, 1, 39.08431))
sketch1.addConstraint(Sketcher.Constraint("DistanceY", 79, 3, -1, 1, 47.25959))
sketch1.addConstraint(Sketcher.Constraint("DistanceY", 80, 3, -1, 1, 58.025608))
sketch1.addConstraint(Sketcher.Constraint("DistanceX", 5, 2, -1, 1, 82.888132))
sketch1.addConstraint(Sketcher.Constraint("DistanceY", 73, 2, -1, 1, 25.78431))
sketch1.addConstraint(Sketcher.Constraint("DistanceX", 68, 3, -1, 1, 78.423024))
sketch1.addConstraint(Sketcher.Constraint("DistanceX", 69, 3, -1, 1, 27.623075))
sketch1.addConstraint(Sketcher.Constraint("DistanceX", -1, 1, 70, 3, 78.577377))
sketch1.addConstraint(Sketcher.Constraint("DistanceX", -1, 1, 72, 3, 65.194144))
sketch1.addConstraint(Sketcher.Constraint("DistanceX", -1, 1, 78, 3, 79.354144))
sketch1.addConstraint(Sketcher.Constraint("DistanceX", 73, 2, -1, 1, 21.818722))
sketch1.setExpression("Constraints[205]", "Params.sketch1_diameter")
sketch1.setExpression("Constraints[206]", "Params.sketch1_width")
sketch1.setExpression("Constraints[207]", "Params.sketch1_height")
sketch1.setExpression("Constraints[208]", "Params.sketch1_height2")
sketch1.setExpression("Constraints[210]", "Params.sketch1_width2")
pad1 = doc.addObject("PartDesign::Pad", "Pad")
body.addObject(pad1)
pad1.Profile = sketch1
pad1.setExpression("Length", "Params.pad1_length")
pad1.Reversed = True

doc.recompute()
